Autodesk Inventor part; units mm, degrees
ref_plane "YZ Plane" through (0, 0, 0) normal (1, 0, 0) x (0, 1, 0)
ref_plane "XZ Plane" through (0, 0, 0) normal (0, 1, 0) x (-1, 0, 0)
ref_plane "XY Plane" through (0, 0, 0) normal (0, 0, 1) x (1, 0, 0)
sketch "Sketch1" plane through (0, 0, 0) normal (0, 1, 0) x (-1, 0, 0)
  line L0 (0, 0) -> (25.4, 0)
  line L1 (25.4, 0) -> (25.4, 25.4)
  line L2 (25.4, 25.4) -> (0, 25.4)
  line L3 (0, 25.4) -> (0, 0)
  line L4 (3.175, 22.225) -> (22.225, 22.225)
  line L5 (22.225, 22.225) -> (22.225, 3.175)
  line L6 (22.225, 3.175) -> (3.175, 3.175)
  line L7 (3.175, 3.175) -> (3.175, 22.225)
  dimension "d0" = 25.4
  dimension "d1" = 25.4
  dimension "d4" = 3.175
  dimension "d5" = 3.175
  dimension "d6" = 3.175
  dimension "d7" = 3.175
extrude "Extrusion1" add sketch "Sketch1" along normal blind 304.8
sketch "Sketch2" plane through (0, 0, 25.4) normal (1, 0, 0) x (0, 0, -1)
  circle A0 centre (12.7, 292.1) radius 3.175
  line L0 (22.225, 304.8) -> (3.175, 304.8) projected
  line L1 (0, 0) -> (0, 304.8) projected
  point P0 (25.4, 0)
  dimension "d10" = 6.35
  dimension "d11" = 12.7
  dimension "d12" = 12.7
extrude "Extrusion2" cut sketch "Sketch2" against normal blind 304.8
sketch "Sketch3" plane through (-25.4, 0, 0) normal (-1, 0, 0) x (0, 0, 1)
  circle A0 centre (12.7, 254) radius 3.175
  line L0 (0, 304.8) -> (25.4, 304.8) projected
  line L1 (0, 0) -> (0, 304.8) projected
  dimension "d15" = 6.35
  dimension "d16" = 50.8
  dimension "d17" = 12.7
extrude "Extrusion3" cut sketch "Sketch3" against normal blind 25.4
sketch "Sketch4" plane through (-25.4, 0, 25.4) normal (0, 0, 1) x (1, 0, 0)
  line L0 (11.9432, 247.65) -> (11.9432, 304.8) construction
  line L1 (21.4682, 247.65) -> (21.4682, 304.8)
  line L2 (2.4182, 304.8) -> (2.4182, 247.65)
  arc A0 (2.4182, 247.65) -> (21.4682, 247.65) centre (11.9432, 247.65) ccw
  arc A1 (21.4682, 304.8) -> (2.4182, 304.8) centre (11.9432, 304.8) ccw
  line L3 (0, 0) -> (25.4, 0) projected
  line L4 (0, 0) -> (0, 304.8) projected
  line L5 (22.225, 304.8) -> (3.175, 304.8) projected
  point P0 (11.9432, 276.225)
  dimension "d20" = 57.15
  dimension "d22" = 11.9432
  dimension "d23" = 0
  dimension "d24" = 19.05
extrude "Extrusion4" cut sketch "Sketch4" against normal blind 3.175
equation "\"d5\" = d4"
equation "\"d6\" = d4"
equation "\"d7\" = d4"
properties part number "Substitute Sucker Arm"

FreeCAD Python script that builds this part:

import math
import FreeCAD as App
import Part
import Sketcher
from FreeCAD import Vector
Q = App.Units.Quantity

doc = App.newDocument("Part")
body = doc.addObject("PartDesign::Body", "Body")

# Sketch on XZ plane
sketch1 = body.newObject("Sketcher::SketchObject", "Sketch")
sketch1.AttachmentSupport = (doc.getObject("XZ_Plane"), [""])
sketch1.MapMode = "FlatFace"
sketch1.addGeometry(Part.LineSegment(Vector(0, 25.4, 0), Vector(0, 0, 0)), False)
sketch1.addGeometry(Part.LineSegment(Vector(0, 0, 0), Vector(-25.4, 0, 0)), False)
sketch1.addGeometry(Part.LineSegment(Vector(-25.4, 0, 0), Vector(-25.4, 25.4, 0)), False)
sketch1.addGeometry(Part.LineSegment(Vector(-25.4, 25.4, 0), Vector(0, 25.4, 0)), False)
sketch1.addGeometry(Part.LineSegment(Vector(-3.175, 3.175, 0), Vector(-3.175, 22.225, 0)), False)
sketch1.addGeometry(Part.LineSegment(Vector(-3.175, 22.225, 0), Vector(-22.225, 22.225, 0)), False)
sketch1.addGeometry(Part.LineSegment(Vector(-22.225, 22.225, 0), Vector(-22.225, 3.175, 0)), False)
sketch1.addGeometry(Part.LineSegment(Vector(-22.225, 3.175, 0), Vector(-3.175, 3.175, 0)), False)
sketch1.addConstraint(Sketcher.Constraint("Coincident", 0, 2, 1, 1))
sketch1.addConstraint(Sketcher.Constraint("Coincident", 1, 2, 2, 1))
sketch1.addConstraint(Sketcher.Constraint("Coincident", 2, 2, 3, 1))
sketch1.addConstraint(Sketcher.Constraint("Coincident", 3, 2, 0, 1))
sketch1.addConstraint(Sketcher.Constraint("Coincident", 4, 2, 5, 1))
sketch1.addConstraint(Sketcher.Constraint("Coincident", 5, 2, 6, 1))
sketch1.addConstraint(Sketcher.Constraint("Coincident", 6, 2, 7, 1))
sketch1.addConstraint(Sketcher.Constraint("Coincident", 7, 2, 4, 1))
sketch1.addConstraint(Sketcher.Constraint("Vertical", 0))
sketch1.addConstraint(Sketcher.Constraint("Horizontal", 1))
sketch1.addConstraint(Sketcher.Constraint("Vertical", 2))
sketch1.addConstraint(Sketcher.Constraint("Horizontal", 3))
sketch1.addConstraint(Sketcher.Constraint("Vertical", 4))
sketch1.addConstraint(Sketcher.Constraint("Horizontal", 5))
sketch1.addConstraint(Sketcher.Constraint("Vertical", 6))
sketch1.addConstraint(Sketcher.Constraint("Horizontal", 7))
sketch1.addConstraint(Sketcher.Constraint("Coincident", 0, 2, -1, 1))
sketch1.addConstraint(Sketcher.Constraint("Equal", 3, 0))
sketch1.addConstraint(Sketcher.Constraint("Equal", 7, 4))
sketch1.addConstraint(Sketcher.Constraint("DistanceX", 1, 2, 1, 1, Q("1 in")))
sketch1.addConstraint(Sketcher.Constraint("DistanceX", 4, 2, -1, 1, Q("0.125 in")))
sketch1.addConstraint(Sketcher.Constraint("DistanceY", -1, 1, 6, 2, Q("0.125 in")))
sketch1.addConstraint(Sketcher.Constraint("DistanceY", 4, 2, 3, 2, Q("0.125 in")))
pad1 = body.newObject("PartDesign::Pad", "Pad")
pad1.Profile = sketch1
pad1.Length = Q("12 in")
pad1.Reversed = True

# Sketch on YZ plane
sketch2 = body.newObject("Sketcher::SketchObject", "Sketch001")
sketch2.AttachmentSupport = (doc.getObject("YZ_Plane"), [""])
sketch2.MapMode = "FlatFace"
sketch2.addGeometry(Part.Circle(Vector(292.1, 12.7, 0), Vector(0, 0, 1), 3.175), False)
sketch2.addConstraint(Sketcher.Constraint("Diameter", 0, Q("0.25 in")))
sketch2.addConstraint(Sketcher.Constraint("DistanceY", -1, 1, 0, 3, Q("0.5 in")))
sketch2.addConstraint(Sketcher.Constraint("DistanceX", -1, 1, 0, 3, Q("11.5 in")))
pocket1 = body.newObject("PartDesign::Pocket", "Pocket")
pocket1.Profile = sketch2
pocket1.Length = Q("12 in")

# Sketch on YZ plane
sketch3 = body.newObject("Sketcher::SketchObject", "Sketch002")
sketch3.AttachmentSupport = (doc.getObject("YZ_Plane"), [""])
sketch3.MapMode = "FlatFace"
sketch3.AttachmentOffset = App.Placement(Vector(0, 0, -1 * 25.4), App.Rotation())
sketch3.addGeometry(Part.Circle(Vector(254, 12.7, 0), Vector(0, 0, 1), 3.175), False)
sketch3.addConstraint(Sketcher.Constraint("Diameter", 0, Q("0.25 in")))
sketch3.addConstraint(Sketcher.Constraint("DistanceY", -1, 1, 0, 3, Q("0.5 in")))
sketch3.addConstraint(Sketcher.Constraint("DistanceX", -1, 1, 0, 3, Q("10 in")))
pocket2 = body.newObject("PartDesign::Pocket", "Pocket001")
pocket2.Profile = sketch3
pocket2.Length = Q("1 in")
pocket2.Reversed = True

# Sketch on XY plane
sketch4 = body.newObject("Sketcher::SketchObject", "Sketch003")
sketch4.AttachmentSupport = (doc.getObject("XY_Plane"), [""])
sketch4.MapMode = "FlatFace"
sketch4.AttachmentOffset = App.Placement(Vector(0, 0, 1 * 25.4), App.Rotation())
sketch4.addGeometry(Part.ArcOfCircle(Part.Circle(Vector(-13.4568, 247.65, 0), Vector(0, 0, 1), 9.525), math.radians(180), math.radians(360)), False)
sketch4.addGeometry(Part.LineSegment(Vector(-3.9318, 247.65, 0), Vector(-3.9318, 304.8, 0)), False)
sketch4.addGeometry(Part.ArcOfCircle(Part.Circle(Vector(-13.4568, 304.8, 0), Vector(0, 0, 1), 9.525), math.radians(0), math.radians(180)), False)
sketch4.addGeometry(Part.LineSegment(Vector(-22.9818, 304.8, 0), Vector(-22.9818, 247.65, 0)), False)
sketch4.addConstraint(Sketcher.Constraint("Tangent", 0, 2, 1, 1))
sketch4.addConstraint(Sketcher.Constraint("Tangent", 1, 2, 2, 1))
sketch4.addConstraint(Sketcher.Constraint("Tangent", 2, 2, 3, 1))
sketch4.addConstraint(Sketcher.Constraint("Tangent", 3, 2, 0, 1))
sketch4.addConstraint(Sketcher.Constraint("Vertical", 1))
sketch4.addConstraint(Sketcher.Constraint("Vertical", 3))
sketch4.addConstraint(Sketcher.Constraint("Radius", 0, Q("0.375 in")))
sketch4.addConstraint(Sketcher.Constraint("DistanceY", 1, 1, 1, 2, Q("2.25 in")))
sketch4.addConstraint(Sketcher.Constraint("DistanceY", -1, 1, 2, 3, Q("12 in")))
sketch4.addConstraint(Sketcher.Constraint("DistanceX", 0, 3, -1, 1, Q("0.5298 in")))
pocket3 = body.newObject("PartDesign::Pocket", "Pocket002")
pocket3.Profile = sketch4
pocket3.Length = Q("0.125 in")

doc.recompute()
